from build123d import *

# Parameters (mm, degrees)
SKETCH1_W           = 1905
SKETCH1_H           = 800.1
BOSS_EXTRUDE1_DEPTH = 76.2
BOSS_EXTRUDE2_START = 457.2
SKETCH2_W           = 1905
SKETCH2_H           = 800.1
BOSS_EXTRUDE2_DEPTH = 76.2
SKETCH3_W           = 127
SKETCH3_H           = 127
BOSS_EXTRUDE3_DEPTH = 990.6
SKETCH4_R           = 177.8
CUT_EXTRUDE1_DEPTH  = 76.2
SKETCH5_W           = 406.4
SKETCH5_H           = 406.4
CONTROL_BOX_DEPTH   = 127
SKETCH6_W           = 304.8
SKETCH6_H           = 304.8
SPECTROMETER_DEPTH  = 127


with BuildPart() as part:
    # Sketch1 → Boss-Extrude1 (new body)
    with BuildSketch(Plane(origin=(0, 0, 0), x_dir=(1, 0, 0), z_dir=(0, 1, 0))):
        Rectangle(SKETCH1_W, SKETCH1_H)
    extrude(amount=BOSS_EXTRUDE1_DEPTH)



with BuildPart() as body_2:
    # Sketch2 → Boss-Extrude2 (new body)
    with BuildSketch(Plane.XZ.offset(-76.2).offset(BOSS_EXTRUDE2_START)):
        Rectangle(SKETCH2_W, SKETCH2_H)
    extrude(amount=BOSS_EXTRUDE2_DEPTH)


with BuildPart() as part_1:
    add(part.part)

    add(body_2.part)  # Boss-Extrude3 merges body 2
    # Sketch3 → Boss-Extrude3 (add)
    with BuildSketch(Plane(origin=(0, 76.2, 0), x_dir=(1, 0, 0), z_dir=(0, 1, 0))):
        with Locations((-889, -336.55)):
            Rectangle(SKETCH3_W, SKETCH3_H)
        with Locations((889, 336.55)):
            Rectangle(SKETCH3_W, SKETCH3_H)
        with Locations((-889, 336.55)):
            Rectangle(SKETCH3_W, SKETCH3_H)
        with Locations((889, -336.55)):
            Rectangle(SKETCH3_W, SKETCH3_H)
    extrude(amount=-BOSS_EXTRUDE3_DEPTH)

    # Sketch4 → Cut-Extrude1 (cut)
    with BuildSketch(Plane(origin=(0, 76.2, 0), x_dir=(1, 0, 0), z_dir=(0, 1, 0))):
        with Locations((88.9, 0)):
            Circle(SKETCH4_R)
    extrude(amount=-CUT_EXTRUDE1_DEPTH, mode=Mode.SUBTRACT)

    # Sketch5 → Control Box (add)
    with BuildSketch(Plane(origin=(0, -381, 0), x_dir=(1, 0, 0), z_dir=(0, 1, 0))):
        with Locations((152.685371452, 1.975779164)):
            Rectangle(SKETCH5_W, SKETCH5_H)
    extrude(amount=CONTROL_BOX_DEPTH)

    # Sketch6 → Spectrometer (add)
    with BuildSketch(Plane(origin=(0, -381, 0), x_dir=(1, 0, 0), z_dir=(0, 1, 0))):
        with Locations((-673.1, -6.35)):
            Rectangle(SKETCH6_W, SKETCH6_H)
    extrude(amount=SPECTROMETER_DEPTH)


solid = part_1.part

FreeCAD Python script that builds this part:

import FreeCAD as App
import Part
import Sketcher

V = App.Vector
Q = App.Units.Quantity


def add_polygon(sketch, points):
    """Adds a closed chain of lines whose ends are joined by coincident constraints."""
    first, n = sketch.GeometryCount, len(points)
    for a, b in zip(points, points[1:] + points[:1]):
        sketch.addGeometry(Part.LineSegment(App.Vector(*a, 0), App.Vector(*b, 0)), False)
    for i in range(n):
        sketch.addConstraint(Sketcher.Constraint("Coincident", first + i, 2, first + (i + 1) % n, 1))

doc = App.newDocument("Part")
params = doc.addObject("Spreadsheet::Sheet", "Params")
for row, (alias, value) in enumerate([
    ("sketch1_width", "75 in"),
    ("sketch1_height", "31.5 in"),
    ("pad1_length", "3 in"),
    ("sketch2_width", "75 in"),
    ("sketch2_height", "31.5 in"),
    ("pad2_length", "3 in"),
    ("sketch3_width", "5 in"),
    ("pad3_length", "39 in"),
    ("sketch4_diameter", "14 in"),
    ("pocket1_length", "3 in"),
    ("sketch5_width", "16 in"),
    ("pad4_length", "5 in"),
    ("sketch6_width", "12 in"),
    ("pad5_length", "5 in"),
], start=1):
    params.set(f"A{row}", alias)
    params.set(f"B{row}", "=" + value)
    params.setAlias(f"B{row}", alias)

body = doc.addObject("PartDesign::Body", "Body")

# Sketch on XZ plane
sketch1 = body.newObject("Sketcher::SketchObject", "Sketch")
sketch1.AttachmentSupport = (doc.getObject("XZ_Plane"), [""])
sketch1.MapMode = "FlatFace"
add_polygon(sketch1, [(-952, -400), (-952, 400), (952, 400), (952, -400)])  # lines 0-3
sketch1.addConstraint([
    Sketcher.Constraint("Vertical", 0),
    Sketcher.Constraint("Horizontal", 1),
    Sketcher.Constraint("Vertical", 2),
    Sketcher.Constraint("Horizontal", 3),
    Sketcher.Constraint("Symmetric", 0, 2, 2, 2, -1, 1),
    Sketcher.Constraint("DistanceX", 1, 1, 1, 2, Q("75 in")),
    Sketcher.Constraint("DistanceY", 0, 1, 0, 2, Q("31.5 in")),
])
sketch1.setExpression("Constraints[9]", "Params.sketch1_width")
sketch1.setExpression("Constraints[10]", "Params.sketch1_height")
pad1 = body.newObject("PartDesign::Pad", "Pad")
pad1.Profile = sketch1
pad1.setExpression("Length", "Params.pad1_length")
pad1.Reversed = True
body2 = doc.addObject("PartDesign::Body", "Body001")

# Sketch on XZ plane
sketch2 = body2.newObject("Sketcher::SketchObject", "Sketch001")
sketch2.AttachmentSupport = (doc.getObject("XZ_Plane001"), [""])
sketch2.MapMode = "FlatFace"
sketch2.AttachmentOffset = App.Placement(V(0, 0, 15 * 25.4), App.Rotation())
add_polygon(sketch2, [(-952, 400), (-952, -400), (952, -400), (952, 400)])  # lines 0-3
sketch2.addConstraint([
    Sketcher.Constraint("Vertical", 0),
    Sketcher.Constraint("Horizontal", 1),
    Sketcher.Constraint("Vertical", 2),
    Sketcher.Constraint("Horizontal", 3),
    Sketcher.Constraint("Symmetric", 0, 2, 2, 2, -1, 1),
    Sketcher.Constraint("DistanceX", 1, 1, 1, 2, Q("75 in")),
    Sketcher.Constraint("DistanceY", 0, 2, 0, 1, Q("31.5 in")),
])
sketch2.setExpression("Constraints[9]", "Params.sketch2_width")
sketch2.setExpression("Constraints[10]", "Params.sketch2_height")
pad2 = body2.newObject("PartDesign::Pad", "Pad001")
pad2.Profile = sketch2
pad2.setExpression("Length", "Params.pad2_length")
body.AllowCompound = True
doc.recompute()

boolean = body.newObject("PartDesign::Boolean", "Boolean")
boolean.Type = "Fuse"
boolean.addObjects([body2])

# Sketch on XZ plane
sketch3 = body.newObject("Sketcher::SketchObject", "Sketch002")
sketch3.AttachmentSupport = (doc.getObject("XZ_Plane"), [""])
sketch3.MapMode = "FlatFace"
sketch3.AttachmentOffset = App.Placement(V(0, 0, -3 * 25.4), App.Rotation())
add_polygon(sketch3, [(-952, 273), (-952, 400), (-826, 400), (-826, 273)])  # lines 0-3
add_polygon(sketch3, [(826, -400), (826, -273), (952, -273), (952, -400)])  # lines 4-7
add_polygon(sketch3, [(-952, -400), (-952, -273), (-826, -273), (-826, -400)])  # lines 8-11
add_polygon(sketch3, [(826, 273), (826, 400), (952, 400), (952, 273)])  # lines 12-15
sketch3.addConstraint([
    Sketcher.Constraint("Vertical", 0),
    Sketcher.Constraint("Horizontal", 1),
    Sketcher.Constraint("Vertical", 2),
    Sketcher.Constraint("Horizontal", 3),
    Sketcher.Constraint("Vertical", 4),
    Sketcher.Constraint("Horizontal", 5),
    Sketcher.Constraint("Vertical", 6),
    Sketcher.Constraint("Horizontal", 7),
    Sketcher.Constraint("Vertical", 8),
    Sketcher.Constraint("Horizontal", 9),
    Sketcher.Constraint("Vertical", 10),
    Sketcher.Constraint("Horizontal", 11),
    Sketcher.Constraint("Vertical", 12),
    Sketcher.Constraint("Horizontal", 13),
    Sketcher.Constraint("Vertical", 14),
    Sketcher.Constraint("Horizontal", 15),
    Sketcher.Constraint("Symmetric", 2, 2, 4, 2, -1, 1),
    Sketcher.Constraint("Symmetric", 0, 2, 6, 2, -1, 1),
    Sketcher.Constraint("Symmetric", 10, 2, 12, 2, -1, 1),
    Sketcher.Constraint("Symmetric", 8, 2, 14, 2, -1, 1),
    Sketcher.Constraint("Symmetric", 5, 2, 8, 2, -2),
    Sketcher.Constraint("Symmetric", 7, 2, 10, 2, -2),
    Sketcher.Constraint("Equal", 15, 0),
    Sketcher.Constraint("DistanceX", 1, 1, 1, 2, Q("5 in")),
    Sketcher.Constraint("DistanceX", 2, 2, 4, 2, Q("65 in")),
    Sketcher.Constraint("DistanceY", 4, 2, 2, 2, Q("21.5 in")),
])
sketch3.setExpression("Constraints[39]", "Params.sketch3_width")
pad3 = body.newObject("PartDesign::Pad", "Pad002")
pad3.Profile = sketch3
pad3.setExpression("Length", "Params.pad3_length")

# Sketch on XZ plane
sketch4 = body.newObject("Sketcher::SketchObject", "Sketch003")
sketch4.AttachmentSupport = (doc.getObject("XZ_Plane"), [""])
sketch4.MapMode = "FlatFace"
sketch4.AttachmentOffset = App.Placement(V(0, 0, -3 * 25.4), App.Rotation())
sketch4.addGeometry(Part.Circle(V(89, 0, 0), V(0, 0, 1), 178), False)
sketch4.addConstraint([
    Sketcher.Constraint("PointOnObject", 0, 3, -1),
    Sketcher.Constraint("Diameter", 0, Q("14 in")),
    Sketcher.Constraint("DistanceX", -1, 1, 0, 3, Q("3.5 in")),
])
sketch4.setExpression("Constraints[1]", "Params.sketch4_diameter")
pocket1 = body.newObject("PartDesign::Pocket", "Pocket")
pocket1.Profile = sketch4
pocket1.setExpression("Length", "Params.pocket1_length")
pocket1.Reversed = True

# Sketch on XZ plane
sketch5 = body.newObject("Sketcher::SketchObject", "Sketch004")
sketch5.AttachmentSupport = (doc.getObject("XZ_Plane"), [""])
sketch5.MapMode = "FlatFace"
sketch5.AttachmentOffset = App.Placement(V(0, 0, 15 * 25.4), App.Rotation())
add_polygon(sketch5, [(-51, -205), (-51, 201), (356, 201), (356, -205)])  # lines 0-3
sketch5.addConstraint([
    Sketcher.Constraint("Vertical", 0),
    Sketcher.Constraint("Horizontal", 1),
    Sketcher.Constraint("Vertical", 2),
    Sketcher.Constraint("Horizontal", 3),
    Sketcher.Constraint("Equal", 3, 0),
    Sketcher.Constraint("DistanceX", 1, 1, 1, 2, Q("16 in")),
    Sketcher.Constraint("DistanceX", 0, 2, -1, 1, Q("50.514629 mm")),
    Sketcher.Constraint("DistanceY", -1, 1, 0, 2, Q("201.224221 mm")),
])
sketch5.setExpression("Constraints[9]", "Params.sketch5_width")
pad4 = body.newObject("PartDesign::Pad", "Pad003")
pad4.Profile = sketch5
pad4.setExpression("Length", "Params.pad4_length")
pad4.Reversed = True

# Sketch on XZ plane
sketch6 = body.newObject("Sketcher::SketchObject", "Sketch005")
sketch6.AttachmentSupport = (doc.getObject("XZ_Plane"), [""])
sketch6.MapMode = "FlatFace"
sketch6.AttachmentOffset = App.Placement(V(0, 0, 15 * 25.4), App.Rotation())
add_polygon(sketch6, [(-826, -146), (-826, 159), (-521, 159), (-521, -146)])  # lines 0-3
sketch6.addConstraint([
    Sketcher.Constraint("Vertical", 0),
    Sketcher.Constraint("Horizontal", 1),
    Sketcher.Constraint("Vertical", 2),
    Sketcher.Constraint("Horizontal", 3),
    Sketcher.Constraint("Equal", 3, 0),
    Sketcher.Constraint("DistanceX", 1, 1, 1, 2, Q("12 in")),
    Sketcher.Constraint("DistanceX", 0, 2, -1, 1, Q("32.5 in")),
    Sketcher.Constraint("DistanceY", -1, 1, 0, 2, Q("6.25 in")),
])
sketch6.setExpression("Constraints[9]", "Params.sketch6_width")
pad5 = body.newObject("PartDesign::Pad", "Pad004")
pad5.Profile = sketch6
pad5.setExpression("Length", "Params.pad5_length")
pad5.Reversed = True

doc.recompute()
